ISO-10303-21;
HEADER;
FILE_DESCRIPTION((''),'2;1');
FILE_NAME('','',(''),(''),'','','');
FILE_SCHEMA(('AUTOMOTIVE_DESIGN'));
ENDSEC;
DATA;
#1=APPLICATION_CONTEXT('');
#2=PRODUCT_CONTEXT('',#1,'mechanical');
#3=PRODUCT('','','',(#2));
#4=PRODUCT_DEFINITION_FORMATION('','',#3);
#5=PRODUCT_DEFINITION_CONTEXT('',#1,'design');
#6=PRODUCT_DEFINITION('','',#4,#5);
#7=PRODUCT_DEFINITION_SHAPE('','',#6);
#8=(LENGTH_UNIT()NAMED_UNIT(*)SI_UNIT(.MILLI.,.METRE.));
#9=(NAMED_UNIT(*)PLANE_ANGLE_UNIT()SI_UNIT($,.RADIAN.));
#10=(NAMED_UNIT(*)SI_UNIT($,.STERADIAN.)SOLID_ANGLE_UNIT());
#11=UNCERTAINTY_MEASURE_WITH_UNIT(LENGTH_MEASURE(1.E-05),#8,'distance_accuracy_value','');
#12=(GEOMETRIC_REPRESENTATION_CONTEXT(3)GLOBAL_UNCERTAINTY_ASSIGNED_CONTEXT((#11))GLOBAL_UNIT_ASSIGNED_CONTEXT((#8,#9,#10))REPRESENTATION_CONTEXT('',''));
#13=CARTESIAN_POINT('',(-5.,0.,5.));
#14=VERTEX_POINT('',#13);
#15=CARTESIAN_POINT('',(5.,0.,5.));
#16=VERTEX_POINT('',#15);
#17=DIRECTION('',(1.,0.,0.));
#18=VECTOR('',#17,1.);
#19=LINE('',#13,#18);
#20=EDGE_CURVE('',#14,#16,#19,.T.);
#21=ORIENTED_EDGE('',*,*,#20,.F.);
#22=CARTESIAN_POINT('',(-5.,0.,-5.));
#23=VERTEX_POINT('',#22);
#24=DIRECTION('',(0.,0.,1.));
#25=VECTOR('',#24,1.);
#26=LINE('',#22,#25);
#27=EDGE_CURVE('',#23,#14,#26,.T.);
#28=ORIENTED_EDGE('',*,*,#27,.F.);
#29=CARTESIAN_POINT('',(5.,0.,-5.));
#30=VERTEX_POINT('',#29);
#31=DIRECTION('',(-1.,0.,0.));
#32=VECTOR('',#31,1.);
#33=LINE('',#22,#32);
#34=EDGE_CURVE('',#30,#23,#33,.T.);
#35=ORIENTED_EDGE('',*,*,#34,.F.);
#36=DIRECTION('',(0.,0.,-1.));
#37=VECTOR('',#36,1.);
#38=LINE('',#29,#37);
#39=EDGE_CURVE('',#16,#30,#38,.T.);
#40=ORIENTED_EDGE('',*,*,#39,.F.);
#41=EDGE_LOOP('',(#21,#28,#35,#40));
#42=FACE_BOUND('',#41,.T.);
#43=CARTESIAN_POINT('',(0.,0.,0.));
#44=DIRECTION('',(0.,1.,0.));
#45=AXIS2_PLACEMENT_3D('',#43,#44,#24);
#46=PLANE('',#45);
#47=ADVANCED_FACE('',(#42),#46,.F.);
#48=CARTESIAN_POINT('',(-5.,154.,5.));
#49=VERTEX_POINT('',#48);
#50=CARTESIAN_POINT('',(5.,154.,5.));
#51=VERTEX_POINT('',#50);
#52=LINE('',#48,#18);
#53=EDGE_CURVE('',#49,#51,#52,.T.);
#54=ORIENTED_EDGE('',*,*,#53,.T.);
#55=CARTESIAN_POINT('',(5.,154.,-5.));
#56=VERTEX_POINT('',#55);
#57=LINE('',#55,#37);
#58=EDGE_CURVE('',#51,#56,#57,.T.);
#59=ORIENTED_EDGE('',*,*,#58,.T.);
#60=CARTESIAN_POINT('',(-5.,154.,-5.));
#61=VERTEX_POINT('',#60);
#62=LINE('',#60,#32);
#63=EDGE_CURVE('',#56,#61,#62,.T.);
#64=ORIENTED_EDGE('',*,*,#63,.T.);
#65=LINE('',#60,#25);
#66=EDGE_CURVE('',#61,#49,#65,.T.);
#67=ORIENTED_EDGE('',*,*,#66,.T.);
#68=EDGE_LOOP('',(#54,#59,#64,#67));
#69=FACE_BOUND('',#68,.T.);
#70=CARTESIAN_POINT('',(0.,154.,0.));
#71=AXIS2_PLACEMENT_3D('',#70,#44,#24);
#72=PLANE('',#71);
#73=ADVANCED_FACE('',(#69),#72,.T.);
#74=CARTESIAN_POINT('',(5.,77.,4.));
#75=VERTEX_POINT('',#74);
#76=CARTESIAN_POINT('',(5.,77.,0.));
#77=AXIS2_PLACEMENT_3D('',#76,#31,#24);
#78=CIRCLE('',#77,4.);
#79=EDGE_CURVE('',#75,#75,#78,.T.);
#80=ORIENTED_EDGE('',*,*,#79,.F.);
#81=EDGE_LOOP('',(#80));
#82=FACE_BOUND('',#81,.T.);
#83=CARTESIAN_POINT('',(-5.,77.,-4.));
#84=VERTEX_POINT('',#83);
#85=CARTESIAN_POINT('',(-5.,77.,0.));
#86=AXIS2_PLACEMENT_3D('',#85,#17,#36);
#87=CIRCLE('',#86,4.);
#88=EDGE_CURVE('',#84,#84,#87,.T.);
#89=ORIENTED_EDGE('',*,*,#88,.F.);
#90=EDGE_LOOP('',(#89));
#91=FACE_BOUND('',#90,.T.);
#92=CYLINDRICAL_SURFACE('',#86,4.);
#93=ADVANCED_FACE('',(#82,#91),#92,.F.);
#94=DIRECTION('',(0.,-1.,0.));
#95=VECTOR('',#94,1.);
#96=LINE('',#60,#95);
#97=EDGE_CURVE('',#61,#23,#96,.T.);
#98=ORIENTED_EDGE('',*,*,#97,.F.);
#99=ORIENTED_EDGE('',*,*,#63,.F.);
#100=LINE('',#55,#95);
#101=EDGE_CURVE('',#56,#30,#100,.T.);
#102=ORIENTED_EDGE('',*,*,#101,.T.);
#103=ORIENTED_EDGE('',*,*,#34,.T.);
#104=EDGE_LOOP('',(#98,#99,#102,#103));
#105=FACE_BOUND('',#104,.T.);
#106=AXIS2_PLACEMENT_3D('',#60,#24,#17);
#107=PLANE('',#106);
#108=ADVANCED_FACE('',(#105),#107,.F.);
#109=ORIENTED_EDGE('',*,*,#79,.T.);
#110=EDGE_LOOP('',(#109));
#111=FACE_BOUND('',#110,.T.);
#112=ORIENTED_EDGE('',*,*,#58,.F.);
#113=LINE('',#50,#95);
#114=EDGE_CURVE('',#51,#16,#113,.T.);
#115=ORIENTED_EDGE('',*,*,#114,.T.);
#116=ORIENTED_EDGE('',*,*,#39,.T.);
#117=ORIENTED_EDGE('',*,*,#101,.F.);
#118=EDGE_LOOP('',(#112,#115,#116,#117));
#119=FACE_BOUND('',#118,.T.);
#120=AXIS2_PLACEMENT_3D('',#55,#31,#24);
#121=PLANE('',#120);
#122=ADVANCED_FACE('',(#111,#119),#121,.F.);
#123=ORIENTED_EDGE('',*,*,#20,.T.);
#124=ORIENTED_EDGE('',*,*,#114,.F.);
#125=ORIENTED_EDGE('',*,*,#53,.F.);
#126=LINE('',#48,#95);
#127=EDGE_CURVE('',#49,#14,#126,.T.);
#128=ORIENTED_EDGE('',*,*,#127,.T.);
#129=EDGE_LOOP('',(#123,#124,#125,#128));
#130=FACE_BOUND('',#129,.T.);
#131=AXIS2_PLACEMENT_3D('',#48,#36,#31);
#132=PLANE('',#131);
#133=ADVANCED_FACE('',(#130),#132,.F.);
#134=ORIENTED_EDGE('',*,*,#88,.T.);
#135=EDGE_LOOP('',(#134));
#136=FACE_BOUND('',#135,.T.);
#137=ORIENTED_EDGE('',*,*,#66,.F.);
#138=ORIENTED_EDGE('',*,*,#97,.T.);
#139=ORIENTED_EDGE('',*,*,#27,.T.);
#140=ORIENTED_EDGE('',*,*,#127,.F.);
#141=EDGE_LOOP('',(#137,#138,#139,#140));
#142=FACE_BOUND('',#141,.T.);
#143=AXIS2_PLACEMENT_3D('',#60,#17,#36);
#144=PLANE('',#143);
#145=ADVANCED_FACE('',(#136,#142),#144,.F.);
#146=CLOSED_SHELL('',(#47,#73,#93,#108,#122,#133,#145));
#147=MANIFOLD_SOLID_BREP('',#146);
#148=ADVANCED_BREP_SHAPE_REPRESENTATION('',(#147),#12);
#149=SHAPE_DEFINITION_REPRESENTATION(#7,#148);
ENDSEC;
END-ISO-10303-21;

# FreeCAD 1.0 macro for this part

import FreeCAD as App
import Part
import Sketcher

V = App.Vector


def add_polygon(sketch, points):
    """Adds a closed chain of lines whose ends are joined by coincident constraints."""
    first, n = sketch.GeometryCount, len(points)
    for a, b in zip(points, points[1:] + points[:1]):
        sketch.addGeometry(Part.LineSegment(App.Vector(*a, 0), App.Vector(*b, 0)), False)
    for i in range(n):
        sketch.addConstraint(Sketcher.Constraint("Coincident", first + i, 2, first + (i + 1) % n, 1))

doc = App.newDocument("Part")
params = doc.addObject("Spreadsheet::Sheet", "Params")
for row, (alias, value) in enumerate([
    ("sketch1_width", "10 mm"),
    ("pad1_length", "154 mm"),
    ("sketch2_diameter", "8 mm"),
], start=1):
    params.set(f"A{row}", alias)
    params.set(f"B{row}", "=" + value)
    params.setAlias(f"B{row}", alias)

body = doc.addObject("PartDesign::Body", "Body")

# Sketch on XZ plane
sketch1 = body.newObject("Sketcher::SketchObject", "Sketch")
sketch1.AttachmentSupport = (doc.getObject("XZ_Plane"), [""])
sketch1.MapMode = "FlatFace"
add_polygon(sketch1, [(-5, -5), (-5, 5), (5, 5), (5, -5)])  # lines 0-3
sketch1.addConstraint([
    Sketcher.Constraint("Vertical", 0),
    Sketcher.Constraint("Horizontal", 1),
    Sketcher.Constraint("Vertical", 2),
    Sketcher.Constraint("Horizontal", 3),
    Sketcher.Constraint("Symmetric", 0, 2, 2, 2, -1, 1),
    Sketcher.Constraint("Equal", 3, 0),
    Sketcher.Constraint("DistanceX", 1, 1, 1, 2, 10.0),
])
sketch1.setExpression("Constraints[10]", "Params.sketch1_width")
pad1 = body.newObject("PartDesign::Pad", "Pad")
pad1.Profile = sketch1
pad1.setExpression("Length", "Params.pad1_length")
pad1.Reversed = True

# Sketch on YZ plane
sketch2 = body.newObject("Sketcher::SketchObject", "Sketch001")
sketch2.AttachmentSupport = (doc.getObject("YZ_Plane"), [""])
sketch2.MapMode = "FlatFace"
sketch2.AttachmentOffset = App.Placement(V(0, 0, 5), App.Rotation())
sketch2.addGeometry(Part.Circle(V(77, 0, 0), V(0, 0, 1), 4), False)
sketch2.addConstraint([
    Sketcher.Constraint("PointOnObject", 0, 3, -1),
    Sketcher.Constraint("Diameter", 0, 8.0),
    Sketcher.Constraint("DistanceX", -1, 1, 0, 3, 77.0),
])
sketch2.setExpression("Constraints[1]", "Params.sketch2_diameter")
pocket1 = body.newObject("PartDesign::Pocket", "Pocket")
pocket1.Profile = sketch2
pocket1.Type = "ThroughAll"
pocket1.Midplane = True

doc.recompute()
